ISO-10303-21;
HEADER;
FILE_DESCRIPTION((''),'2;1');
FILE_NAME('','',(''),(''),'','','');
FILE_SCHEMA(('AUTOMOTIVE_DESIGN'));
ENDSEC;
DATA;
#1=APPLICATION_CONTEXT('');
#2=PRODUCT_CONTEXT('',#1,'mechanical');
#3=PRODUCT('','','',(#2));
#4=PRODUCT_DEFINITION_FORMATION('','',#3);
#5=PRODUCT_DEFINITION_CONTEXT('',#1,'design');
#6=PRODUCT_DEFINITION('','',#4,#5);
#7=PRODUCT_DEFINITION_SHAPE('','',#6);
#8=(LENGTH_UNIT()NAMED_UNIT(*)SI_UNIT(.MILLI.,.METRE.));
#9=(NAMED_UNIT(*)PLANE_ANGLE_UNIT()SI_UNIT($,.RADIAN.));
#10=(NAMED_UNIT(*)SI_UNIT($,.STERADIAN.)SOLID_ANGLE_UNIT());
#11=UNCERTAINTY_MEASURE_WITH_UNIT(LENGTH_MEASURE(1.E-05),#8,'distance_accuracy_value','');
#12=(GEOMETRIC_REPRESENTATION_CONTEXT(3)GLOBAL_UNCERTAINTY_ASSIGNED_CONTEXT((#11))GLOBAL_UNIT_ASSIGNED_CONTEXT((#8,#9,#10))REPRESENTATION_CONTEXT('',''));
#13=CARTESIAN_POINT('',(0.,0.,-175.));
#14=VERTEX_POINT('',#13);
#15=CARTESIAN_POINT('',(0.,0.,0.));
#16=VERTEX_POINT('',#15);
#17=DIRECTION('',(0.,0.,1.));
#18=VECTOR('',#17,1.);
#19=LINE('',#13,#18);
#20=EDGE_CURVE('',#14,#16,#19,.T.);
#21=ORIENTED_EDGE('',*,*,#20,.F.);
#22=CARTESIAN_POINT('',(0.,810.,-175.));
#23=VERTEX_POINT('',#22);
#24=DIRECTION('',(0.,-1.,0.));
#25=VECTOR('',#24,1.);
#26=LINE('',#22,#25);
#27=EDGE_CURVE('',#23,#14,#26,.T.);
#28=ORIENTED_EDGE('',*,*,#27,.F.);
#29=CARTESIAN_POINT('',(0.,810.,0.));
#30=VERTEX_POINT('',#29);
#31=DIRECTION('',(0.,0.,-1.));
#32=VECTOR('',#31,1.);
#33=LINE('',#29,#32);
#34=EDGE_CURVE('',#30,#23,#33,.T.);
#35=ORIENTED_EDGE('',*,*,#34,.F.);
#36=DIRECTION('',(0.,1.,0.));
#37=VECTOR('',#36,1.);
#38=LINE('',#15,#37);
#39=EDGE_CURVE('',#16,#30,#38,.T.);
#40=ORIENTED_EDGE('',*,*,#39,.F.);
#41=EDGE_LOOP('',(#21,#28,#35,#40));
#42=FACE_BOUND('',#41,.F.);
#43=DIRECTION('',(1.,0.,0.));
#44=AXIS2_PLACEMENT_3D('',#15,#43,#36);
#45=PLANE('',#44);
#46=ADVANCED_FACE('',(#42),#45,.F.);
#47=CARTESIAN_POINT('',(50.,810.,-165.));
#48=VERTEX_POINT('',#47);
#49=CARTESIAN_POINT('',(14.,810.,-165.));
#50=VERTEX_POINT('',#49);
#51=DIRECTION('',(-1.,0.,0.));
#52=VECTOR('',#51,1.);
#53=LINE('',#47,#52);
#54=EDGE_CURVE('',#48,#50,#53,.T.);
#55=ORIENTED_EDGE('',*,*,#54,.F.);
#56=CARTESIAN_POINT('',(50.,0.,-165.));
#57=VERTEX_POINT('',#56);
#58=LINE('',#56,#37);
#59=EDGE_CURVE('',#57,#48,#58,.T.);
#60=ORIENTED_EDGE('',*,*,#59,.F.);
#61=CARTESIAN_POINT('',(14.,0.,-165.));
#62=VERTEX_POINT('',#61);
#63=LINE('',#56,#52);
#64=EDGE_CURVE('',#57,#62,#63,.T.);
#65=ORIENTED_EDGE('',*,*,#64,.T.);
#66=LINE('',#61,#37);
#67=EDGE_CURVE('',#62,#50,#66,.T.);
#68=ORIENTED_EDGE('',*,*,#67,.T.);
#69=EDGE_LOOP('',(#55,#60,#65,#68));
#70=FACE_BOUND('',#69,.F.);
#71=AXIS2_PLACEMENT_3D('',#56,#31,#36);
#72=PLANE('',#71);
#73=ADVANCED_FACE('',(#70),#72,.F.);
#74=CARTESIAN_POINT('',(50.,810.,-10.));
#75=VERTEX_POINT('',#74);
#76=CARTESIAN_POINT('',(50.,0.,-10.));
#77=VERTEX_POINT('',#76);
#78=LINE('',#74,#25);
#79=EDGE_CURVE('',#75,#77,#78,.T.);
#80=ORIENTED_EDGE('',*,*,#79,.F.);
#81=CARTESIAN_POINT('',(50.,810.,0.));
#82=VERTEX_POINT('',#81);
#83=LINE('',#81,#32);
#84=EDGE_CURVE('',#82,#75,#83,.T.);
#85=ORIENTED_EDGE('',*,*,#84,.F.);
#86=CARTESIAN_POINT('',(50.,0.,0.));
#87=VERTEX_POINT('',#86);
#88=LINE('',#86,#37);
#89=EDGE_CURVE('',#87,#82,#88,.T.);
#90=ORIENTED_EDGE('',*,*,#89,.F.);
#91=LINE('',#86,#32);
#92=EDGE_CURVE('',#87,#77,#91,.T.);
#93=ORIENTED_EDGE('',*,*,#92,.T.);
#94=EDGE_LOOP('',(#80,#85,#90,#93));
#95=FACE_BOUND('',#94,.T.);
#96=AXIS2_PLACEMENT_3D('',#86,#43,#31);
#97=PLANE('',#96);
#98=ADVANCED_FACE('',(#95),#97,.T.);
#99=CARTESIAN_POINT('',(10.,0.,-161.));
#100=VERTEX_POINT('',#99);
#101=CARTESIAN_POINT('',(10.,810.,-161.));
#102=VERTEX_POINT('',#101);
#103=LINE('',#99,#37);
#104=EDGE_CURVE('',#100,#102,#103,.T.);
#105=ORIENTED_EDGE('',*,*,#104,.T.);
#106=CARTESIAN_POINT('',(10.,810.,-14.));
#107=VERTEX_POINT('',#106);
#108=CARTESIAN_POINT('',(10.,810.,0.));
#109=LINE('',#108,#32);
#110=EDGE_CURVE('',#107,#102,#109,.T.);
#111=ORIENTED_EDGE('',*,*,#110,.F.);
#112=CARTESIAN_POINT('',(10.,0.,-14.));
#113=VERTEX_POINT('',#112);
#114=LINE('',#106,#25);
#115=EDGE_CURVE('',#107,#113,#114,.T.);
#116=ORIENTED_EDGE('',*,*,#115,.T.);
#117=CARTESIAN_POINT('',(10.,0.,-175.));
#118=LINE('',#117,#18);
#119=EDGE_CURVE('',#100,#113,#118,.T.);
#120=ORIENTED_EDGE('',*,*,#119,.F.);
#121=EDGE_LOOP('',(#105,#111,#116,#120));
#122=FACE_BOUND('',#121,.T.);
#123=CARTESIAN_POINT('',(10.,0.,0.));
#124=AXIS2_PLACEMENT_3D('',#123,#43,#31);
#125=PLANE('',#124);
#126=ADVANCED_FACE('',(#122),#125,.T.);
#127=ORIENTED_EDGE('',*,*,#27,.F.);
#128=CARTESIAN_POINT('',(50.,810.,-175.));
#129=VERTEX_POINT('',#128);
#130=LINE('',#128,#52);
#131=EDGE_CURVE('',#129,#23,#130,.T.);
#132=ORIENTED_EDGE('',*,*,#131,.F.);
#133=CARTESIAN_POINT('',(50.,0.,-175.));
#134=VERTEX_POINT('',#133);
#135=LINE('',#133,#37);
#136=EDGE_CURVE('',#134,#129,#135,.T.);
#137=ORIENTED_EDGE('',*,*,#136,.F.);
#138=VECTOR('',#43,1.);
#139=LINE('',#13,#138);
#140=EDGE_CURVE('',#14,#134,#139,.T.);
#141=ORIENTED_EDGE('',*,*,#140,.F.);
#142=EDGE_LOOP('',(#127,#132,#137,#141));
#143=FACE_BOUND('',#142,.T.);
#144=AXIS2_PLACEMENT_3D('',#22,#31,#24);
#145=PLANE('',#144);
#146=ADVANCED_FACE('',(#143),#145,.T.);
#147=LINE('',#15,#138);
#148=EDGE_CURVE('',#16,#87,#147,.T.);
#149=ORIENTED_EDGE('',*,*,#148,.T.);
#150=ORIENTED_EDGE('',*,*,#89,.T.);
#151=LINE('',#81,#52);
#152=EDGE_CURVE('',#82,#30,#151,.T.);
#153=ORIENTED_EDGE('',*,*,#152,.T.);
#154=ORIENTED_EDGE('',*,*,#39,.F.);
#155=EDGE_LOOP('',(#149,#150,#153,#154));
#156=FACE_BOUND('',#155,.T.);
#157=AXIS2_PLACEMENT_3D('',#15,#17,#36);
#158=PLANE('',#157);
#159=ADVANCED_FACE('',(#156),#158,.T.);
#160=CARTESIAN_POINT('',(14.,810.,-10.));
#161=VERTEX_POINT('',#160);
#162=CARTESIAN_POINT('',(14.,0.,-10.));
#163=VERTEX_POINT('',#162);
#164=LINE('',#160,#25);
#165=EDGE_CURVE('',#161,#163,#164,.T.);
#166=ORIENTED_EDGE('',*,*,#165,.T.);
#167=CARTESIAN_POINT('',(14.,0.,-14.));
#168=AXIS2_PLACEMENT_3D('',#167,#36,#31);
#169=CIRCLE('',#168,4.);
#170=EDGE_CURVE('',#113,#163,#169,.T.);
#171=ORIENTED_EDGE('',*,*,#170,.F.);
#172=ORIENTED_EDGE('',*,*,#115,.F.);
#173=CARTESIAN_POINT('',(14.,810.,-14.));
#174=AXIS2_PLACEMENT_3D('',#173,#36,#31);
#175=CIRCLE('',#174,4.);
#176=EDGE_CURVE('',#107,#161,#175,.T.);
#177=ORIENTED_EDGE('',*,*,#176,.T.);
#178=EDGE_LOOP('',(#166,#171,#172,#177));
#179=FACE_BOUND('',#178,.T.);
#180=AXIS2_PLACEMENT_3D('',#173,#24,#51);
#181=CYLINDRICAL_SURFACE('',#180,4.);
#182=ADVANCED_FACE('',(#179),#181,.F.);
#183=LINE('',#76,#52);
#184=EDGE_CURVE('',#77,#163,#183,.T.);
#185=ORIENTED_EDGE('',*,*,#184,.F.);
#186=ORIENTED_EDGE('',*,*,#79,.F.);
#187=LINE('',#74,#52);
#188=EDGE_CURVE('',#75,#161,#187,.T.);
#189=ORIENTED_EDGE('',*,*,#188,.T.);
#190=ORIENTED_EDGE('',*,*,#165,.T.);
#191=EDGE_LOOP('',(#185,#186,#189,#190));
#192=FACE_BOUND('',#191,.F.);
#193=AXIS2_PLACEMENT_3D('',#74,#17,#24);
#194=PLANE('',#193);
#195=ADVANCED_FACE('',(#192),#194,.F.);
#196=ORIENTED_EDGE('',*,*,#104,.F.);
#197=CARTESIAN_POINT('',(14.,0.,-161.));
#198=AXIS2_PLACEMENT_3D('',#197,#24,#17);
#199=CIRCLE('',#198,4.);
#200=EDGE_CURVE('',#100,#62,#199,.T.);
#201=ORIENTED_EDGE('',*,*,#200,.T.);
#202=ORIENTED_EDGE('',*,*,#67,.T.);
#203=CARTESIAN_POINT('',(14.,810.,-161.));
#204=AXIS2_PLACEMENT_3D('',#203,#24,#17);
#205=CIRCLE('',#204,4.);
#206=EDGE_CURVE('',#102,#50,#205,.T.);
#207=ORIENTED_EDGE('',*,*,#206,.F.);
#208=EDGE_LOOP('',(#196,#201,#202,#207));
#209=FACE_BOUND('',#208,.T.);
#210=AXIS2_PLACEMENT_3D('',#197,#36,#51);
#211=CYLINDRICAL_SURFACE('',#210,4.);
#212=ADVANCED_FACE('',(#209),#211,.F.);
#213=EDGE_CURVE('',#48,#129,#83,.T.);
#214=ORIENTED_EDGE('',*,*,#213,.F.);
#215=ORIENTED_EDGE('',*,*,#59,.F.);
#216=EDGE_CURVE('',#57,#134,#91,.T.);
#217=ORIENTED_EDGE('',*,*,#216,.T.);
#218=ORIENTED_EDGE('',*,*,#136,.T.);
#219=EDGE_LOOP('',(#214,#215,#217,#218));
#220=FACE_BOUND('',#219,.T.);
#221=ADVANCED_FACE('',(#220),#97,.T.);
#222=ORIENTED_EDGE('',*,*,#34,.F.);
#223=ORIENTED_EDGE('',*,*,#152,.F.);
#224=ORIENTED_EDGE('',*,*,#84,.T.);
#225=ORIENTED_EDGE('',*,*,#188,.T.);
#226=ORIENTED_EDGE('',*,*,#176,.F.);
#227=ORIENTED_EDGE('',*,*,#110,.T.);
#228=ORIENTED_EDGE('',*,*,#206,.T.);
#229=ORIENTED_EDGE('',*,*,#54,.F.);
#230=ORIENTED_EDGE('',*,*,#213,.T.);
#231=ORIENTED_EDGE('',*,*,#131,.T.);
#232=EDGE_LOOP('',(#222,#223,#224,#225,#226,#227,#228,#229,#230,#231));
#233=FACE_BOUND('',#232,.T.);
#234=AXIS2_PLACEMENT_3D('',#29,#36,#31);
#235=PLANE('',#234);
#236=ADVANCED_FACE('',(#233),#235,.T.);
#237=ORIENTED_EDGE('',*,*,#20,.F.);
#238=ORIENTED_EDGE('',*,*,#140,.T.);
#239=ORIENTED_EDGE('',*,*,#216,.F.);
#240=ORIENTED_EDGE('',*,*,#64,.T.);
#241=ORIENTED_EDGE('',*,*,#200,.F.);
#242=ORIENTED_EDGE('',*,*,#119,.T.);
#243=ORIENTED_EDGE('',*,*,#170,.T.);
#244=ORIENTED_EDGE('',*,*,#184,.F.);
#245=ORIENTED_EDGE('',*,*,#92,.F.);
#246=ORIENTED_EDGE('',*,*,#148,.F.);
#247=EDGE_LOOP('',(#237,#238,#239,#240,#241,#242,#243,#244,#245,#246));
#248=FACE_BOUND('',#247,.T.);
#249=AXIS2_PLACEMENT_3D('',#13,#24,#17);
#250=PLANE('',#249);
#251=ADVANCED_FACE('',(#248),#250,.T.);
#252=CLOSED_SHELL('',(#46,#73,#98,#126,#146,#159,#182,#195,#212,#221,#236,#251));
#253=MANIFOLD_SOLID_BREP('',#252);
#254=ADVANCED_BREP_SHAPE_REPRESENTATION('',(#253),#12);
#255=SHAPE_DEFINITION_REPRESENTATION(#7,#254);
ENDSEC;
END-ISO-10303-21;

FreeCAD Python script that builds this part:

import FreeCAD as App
import Part
import Sketcher
from FreeCAD import Vector
Q = App.Units.Quantity


def edges_at(feature, points):
    """Names of the edges that pass closest to the given points."""
    edges = feature.Shape.Edges
    near = lambda p: min(range(len(edges)), key=lambda i: edges[i].distToShape(Part.Vertex(*p))[0])
    return sorted({f"Edge{near(p) + 1}" for p in points})


def add_polygon(sketch, points):
    """Adds a closed chain of lines whose ends are joined by coincident constraints."""
    first, n = sketch.GeometryCount, len(points)
    for a, b in zip(points, points[1:] + points[:1]):
        sketch.addGeometry(Part.LineSegment(App.Vector(*a, 0), App.Vector(*b, 0)), False)
    for i in range(n):
        sketch.addConstraint(Sketcher.Constraint("Coincident", first + i, 2, first + (i + 1) % n, 1))

doc = App.newDocument("Part")
body = doc.addObject("PartDesign::Body", "Body")

sketch1 = body.newObject("Sketcher::SketchObject", "Sketch")
sketch1.AttachmentSupport = (doc.getObject("YZ_Plane"), [""])
sketch1.MapMode = "FlatFace"
add_polygon(sketch1, [(810, 0), (0, 0), (0, -175), (810, -175)])
sketch1.addConstraint([
    Sketcher.Constraint("Horizontal", 0),
    Sketcher.Constraint("Vertical", 1),
    Sketcher.Constraint("Horizontal", 2),
    Sketcher.Constraint("Vertical", 3),
    Sketcher.Constraint("Coincident", 0, 2, -1, 1),
    Sketcher.Constraint("DistanceX", 0, 2, 0, 1, Q("810 mm")),
    Sketcher.Constraint("DistanceY", 1, 2, 1, 1, Q("175 mm")),
])
pad1 = body.newObject("PartDesign::Pad", "Pad")
pad1.Profile = sketch1
pad1.Length = 10

sketch2 = body.newObject("Sketcher::SketchObject", "Sketch001")
sketch2.AttachmentSupport = (doc.getObject("YZ_Plane"), [""])
sketch2.MapMode = "FlatFace"
sketch2.AttachmentOffset = App.Placement(Vector(0, 0, 10), App.Rotation())
add_polygon(sketch2, [(810, 0), (0, 0), (0, -175), (810, -175)])
sketch2.addConstraint([
    Sketcher.Constraint("Horizontal", 0),
    Sketcher.Constraint("Vertical", 1),
    Sketcher.Constraint("Horizontal", 2),
    Sketcher.Constraint("Vertical", 3),
    Sketcher.Constraint("Coincident", 0, 2, -1, 1),
    Sketcher.Constraint("DistanceX", 0, 2, 0, 1, Q("810 mm")),
    Sketcher.Constraint("DistanceY", 1, 2, 1, 1, Q("175 mm")),
])
pad2 = body.newObject("PartDesign::Pad", "Pad001")
pad2.Profile = sketch2
pad2.Length = 40

sketch3 = body.newObject("Sketcher::SketchObject", "Sketch002")
sketch3.AttachmentSupport = (doc.getObject("YZ_Plane"), [""])
sketch3.MapMode = "FlatFace"
sketch3.AttachmentOffset = App.Placement(Vector(0, 0, 50), App.Rotation())
add_polygon(sketch3, [(0, -10), (0, -165), (810, -165), (810, -10)])
sketch3.addConstraint([
    Sketcher.Constraint("Vertical", 0),
    Sketcher.Constraint("Horizontal", 1),
    Sketcher.Constraint("Vertical", 2),
    Sketcher.Constraint("Horizontal", 3),
    Sketcher.Constraint("PointOnObject", 0, 2, -2),
    Sketcher.Constraint("DistanceY", 0, 2, 0, 1, Q("155 mm")),
    Sketcher.Constraint("DistanceX", 1, 1, 1, 2, Q("810 mm")),
    Sketcher.Constraint("DistanceY", 0, 2, -1, 1, Q("165 mm")),
])
pocket1 = body.newObject("PartDesign::Pocket", "Pocket")
pocket1.Profile = sketch3
pocket1.Length = 40
doc.recompute()

fillet = body.newObject("PartDesign::Fillet", "Fillet")
fillet.Base = (pocket1, edges_at(pocket1, [(10, 405, -165)]))
fillet.Radius = 4
doc.recompute()

fillet2 = body.newObject("PartDesign::Fillet", "Fillet001")
fillet2.Base = (fillet, edges_at(fillet, [(10, 405, -10)]))
fillet2.Radius = 4

doc.recompute()
